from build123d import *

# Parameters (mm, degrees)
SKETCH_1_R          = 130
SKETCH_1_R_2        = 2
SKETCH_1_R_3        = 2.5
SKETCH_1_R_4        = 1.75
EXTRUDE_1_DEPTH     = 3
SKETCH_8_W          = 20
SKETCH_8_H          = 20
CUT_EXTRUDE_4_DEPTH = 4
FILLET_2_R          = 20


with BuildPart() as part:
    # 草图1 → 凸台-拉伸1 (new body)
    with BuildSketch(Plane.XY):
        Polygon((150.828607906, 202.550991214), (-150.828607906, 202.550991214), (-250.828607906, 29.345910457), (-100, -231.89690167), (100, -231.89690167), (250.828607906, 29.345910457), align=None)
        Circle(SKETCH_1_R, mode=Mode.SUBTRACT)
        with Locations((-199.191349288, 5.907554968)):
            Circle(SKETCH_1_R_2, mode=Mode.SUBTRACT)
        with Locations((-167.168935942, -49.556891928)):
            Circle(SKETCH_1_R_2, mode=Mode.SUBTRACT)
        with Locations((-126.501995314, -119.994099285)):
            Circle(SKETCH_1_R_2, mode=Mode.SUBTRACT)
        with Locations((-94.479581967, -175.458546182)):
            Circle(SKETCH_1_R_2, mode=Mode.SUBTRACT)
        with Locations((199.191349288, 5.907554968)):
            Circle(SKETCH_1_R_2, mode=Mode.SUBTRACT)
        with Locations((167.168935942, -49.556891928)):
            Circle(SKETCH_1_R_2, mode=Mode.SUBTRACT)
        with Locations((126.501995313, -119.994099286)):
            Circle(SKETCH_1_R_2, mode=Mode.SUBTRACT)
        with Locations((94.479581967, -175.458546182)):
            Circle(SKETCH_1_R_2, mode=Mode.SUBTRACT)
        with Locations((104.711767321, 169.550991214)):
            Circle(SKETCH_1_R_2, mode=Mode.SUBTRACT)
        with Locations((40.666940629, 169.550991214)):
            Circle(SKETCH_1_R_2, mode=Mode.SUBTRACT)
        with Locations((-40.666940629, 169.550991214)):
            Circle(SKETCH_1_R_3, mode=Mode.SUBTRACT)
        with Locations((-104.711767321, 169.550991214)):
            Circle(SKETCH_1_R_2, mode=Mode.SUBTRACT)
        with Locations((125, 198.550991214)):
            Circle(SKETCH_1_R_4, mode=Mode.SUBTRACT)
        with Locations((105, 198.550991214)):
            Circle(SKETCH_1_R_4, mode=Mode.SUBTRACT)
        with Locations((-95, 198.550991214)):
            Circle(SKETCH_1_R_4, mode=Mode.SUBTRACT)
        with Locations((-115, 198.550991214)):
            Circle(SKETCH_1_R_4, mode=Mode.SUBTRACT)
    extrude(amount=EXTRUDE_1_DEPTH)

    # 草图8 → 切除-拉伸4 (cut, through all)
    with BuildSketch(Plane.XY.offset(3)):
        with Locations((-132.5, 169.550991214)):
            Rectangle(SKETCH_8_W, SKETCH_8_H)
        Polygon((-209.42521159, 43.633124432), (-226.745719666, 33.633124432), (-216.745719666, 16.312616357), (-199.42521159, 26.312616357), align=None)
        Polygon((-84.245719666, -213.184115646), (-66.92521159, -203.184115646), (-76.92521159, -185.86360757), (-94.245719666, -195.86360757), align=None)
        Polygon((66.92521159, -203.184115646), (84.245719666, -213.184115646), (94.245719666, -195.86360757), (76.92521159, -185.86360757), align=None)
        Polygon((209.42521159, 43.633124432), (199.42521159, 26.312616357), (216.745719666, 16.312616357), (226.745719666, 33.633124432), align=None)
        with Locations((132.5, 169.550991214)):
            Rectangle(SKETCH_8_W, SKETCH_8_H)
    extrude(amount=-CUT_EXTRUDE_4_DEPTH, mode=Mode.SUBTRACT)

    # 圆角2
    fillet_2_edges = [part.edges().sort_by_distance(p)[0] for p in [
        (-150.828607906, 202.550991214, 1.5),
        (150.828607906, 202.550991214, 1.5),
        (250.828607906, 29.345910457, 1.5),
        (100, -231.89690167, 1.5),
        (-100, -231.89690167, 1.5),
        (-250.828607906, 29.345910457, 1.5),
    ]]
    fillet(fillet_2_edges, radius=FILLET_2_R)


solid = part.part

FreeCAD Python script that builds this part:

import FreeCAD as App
import Part
import Sketcher

V = App.Vector
Q = App.Units.Quantity


def edges_at(feature, points):
    """Names of the edges that pass closest to the given points."""
    edges = feature.Shape.Edges
    near = lambda p: min(range(len(edges)), key=lambda i: edges[i].distToShape(Part.Vertex(*p))[0])
    return sorted({f"Edge{near(p) + 1}" for p in points})


def add_polygon(sketch, points):
    """Adds a closed chain of lines whose ends are joined by coincident constraints."""
    first, n = sketch.GeometryCount, len(points)
    for a, b in zip(points, points[1:] + points[:1]):
        sketch.addGeometry(Part.LineSegment(App.Vector(*a, 0), App.Vector(*b, 0)), False)
    for i in range(n):
        sketch.addConstraint(Sketcher.Constraint("Coincident", first + i, 2, first + (i + 1) % n, 1))

doc = App.newDocument("Part")
body = doc.addObject("PartDesign::Body", "Body")

sketch1 = doc.addObject("Sketcher::SketchObject", "Sketch")
body.addObject(sketch1)
sketch1.AttachmentSupport = (doc.XY_Plane, [""])
sketch1.MapMode = "FlatFace"
add_polygon(sketch1, [(150.828608, 202.550991), (-150.828608, 202.550991), (-250.828608, 29.34591), (-100, -231.896902), (100, -231.896902), (250.828608, 29.34591)])
sketch1.addGeometry(Part.Circle(V(-126.501995, -119.994099, 0), V(0, 0, 1), 2), False)
sketch1.addGeometry(Part.Circle(V(-94.479582, -175.458546, 0), V(0, 0, 1), 2), False)
sketch1.addGeometry(Part.Circle(V(-167.168936, -49.556892, 0), V(0, 0, 1), 2), False)
sketch1.addGeometry(Part.Circle(V(-199.191349, 5.907555, 0), V(0, 0, 1), 2), False)
sketch1.addGeometry(Part.Circle(V(94.479582, -175.458546, 0), V(0, 0, 1), 2), False)
sketch1.addGeometry(Part.Circle(V(126.501995, -119.994099, 0), V(0, 0, 1), 2), False)
sketch1.addGeometry(Part.Circle(V(0, 0, 0), V(0, 0, 1), 130), False)
sketch1.addGeometry(Part.Circle(V(167.168936, -49.556892, 0), V(0, 0, 1), 2), False)
sketch1.addGeometry(Part.Circle(V(199.191349, 5.907555, 0), V(0, 0, 1), 2), False)
sketch1.addGeometry(Part.Circle(V(-104.711767, 169.550991, 0), V(0, 0, 1), 2), False)
sketch1.addGeometry(Part.Circle(V(-115, 198.550991, 0), V(0, 0, 1), 1.75), False)
sketch1.addGeometry(Part.Circle(V(-95, 198.550991, 0), V(0, 0, 1), 1.75), False)
sketch1.addGeometry(Part.Circle(V(-40.666941, 169.550991, 0), V(0, 0, 1), 2.5), False)
sketch1.addGeometry(Part.Circle(V(40.666941, 169.550991, 0), V(0, 0, 1), 2), False)
sketch1.addGeometry(Part.Circle(V(104.711767, 169.550991, 0), V(0, 0, 1), 2), False)
sketch1.addGeometry(Part.Circle(V(105, 198.550991, 0), V(0, 0, 1), 1.75), False)
sketch1.addGeometry(Part.Circle(V(125, 198.550991, 0), V(0, 0, 1), 1.75), False)
sketch1.addConstraint(Sketcher.Constraint("Horizontal", 0))
sketch1.addConstraint(Sketcher.Constraint("Horizontal", 3))
sketch1.addConstraint(Sketcher.Constraint("Coincident", 12, 3, -1, 1))
sketch1.addConstraint(Sketcher.Constraint("Equal", 6, 7))
sketch1.addConstraint(Sketcher.Constraint("Equal", 7, 8))
sketch1.addConstraint(Sketcher.Constraint("Equal", 8, 9))
sketch1.addConstraint(Sketcher.Constraint("Equal", 9, 10))
sketch1.addConstraint(Sketcher.Constraint("Equal", 10, 11))
sketch1.addConstraint(Sketcher.Constraint("Equal", 11, 13))
sketch1.addConstraint(Sketcher.Constraint("Equal", 13, 14))
sketch1.addConstraint(Sketcher.Constraint("Equal", 14, 15))
sketch1.addConstraint(Sketcher.Constraint("Equal", 16, 17))
sketch1.addConstraint(Sketcher.Constraint("Equal", 15, 19))
sketch1.addConstraint(Sketcher.Constraint("Equal", 19, 20))
sketch1.addConstraint(Sketcher.Constraint("Equal", 17, 21))
sketch1.addConstraint(Sketcher.Constraint("Equal", 21, 22))
sketch1.addConstraint(Sketcher.Constraint("Symmetric", 7, 3, 10, 3, -2))
sketch1.addConstraint(Sketcher.Constraint("Symmetric", 6, 3, 11, 3, -2))
sketch1.addConstraint(Sketcher.Constraint("Symmetric", 8, 3, 13, 3, -2))
sketch1.addConstraint(Sketcher.Constraint("Symmetric", 9, 3, 14, 3, -2))
sketch1.addConstraint(Sketcher.Constraint("Symmetric", 18, 3, 19, 3, -2))
sketch1.addConstraint(Sketcher.Constraint("Symmetric", 15, 3, 20, 3, -2))
sketch1.addConstraint(Sketcher.Constraint("Symmetric", 1, 2, 4, 2, -2))
sketch1.addConstraint(Sketcher.Constraint("Parallel", 1, 4))
sketch1.addConstraint(Sketcher.Constraint("Parallel", 2, 5))
sketch1.addConstraint(Sketcher.Constraint("Horizontal", 16, 3, 17, 3))
sketch1.addConstraint(Sketcher.Constraint("Horizontal", 15, 3, 18, 3))
sketch1.addConstraint(Sketcher.Constraint("Horizontal", 17, 3, 21, 3))
sketch1.addConstraint(Sketcher.Constraint("Horizontal", 21, 3, 22, 3))
sketch1.addConstraint(Sketcher.Constraint("Equal", 2, 4))
sketch1.addConstraint(Sketcher.Constraint("Diameter", 6, Q("4 mm")))
sketch1.addConstraint(Sketcher.Constraint("Diameter", 12, Q("260 mm")))
sketch1.addConstraint(Sketcher.Constraint("Diameter", 18, Q("5 mm")))
sketch1.addConstraint(Sketcher.Constraint("Diameter", 16, Q("3.5 mm")))
sketch1.addConstraint(Sketcher.Constraint("DistanceX", 3, 1, 3, 2, Q("200 mm")))
sketch1.addConstraint(Sketcher.Constraint("Angle", 1, Q("-120 deg")))
sketch1.addConstraint(Sketcher.Constraint("Distance", 1, Q("200 mm")))
sketch1.addConstraint(Sketcher.Constraint("DistanceX", 16, 3, -1, 1, Q("115 mm")))
sketch1.addConstraint(Sketcher.Constraint("DistanceX", 17, 3, -1, 1, Q("95 mm")))
sketch1.addConstraint(Sketcher.Constraint("DistanceX", -1, 1, 21, 3, Q("105 mm")))
sketch1.addConstraint(Sketcher.Constraint("DistanceX", -1, 1, 22, 3, Q("125 mm")))
sketch1.addConstraint(Sketcher.Constraint("DistanceY", 15, 3, 16, 3, Q("29 mm")))
sketch1.addConstraint(Sketcher.Constraint("DistanceY", 16, 3, 0, 2, Q("4 mm")))
sketch1.addConstraint(Sketcher.Constraint("DistanceY", 6, 3, -1, 1, Q("119.994099 mm")))
sketch1.addConstraint(Sketcher.Constraint("DistanceY", 2, 2, -1, 1, Q("231.896902 mm")))
sketch1.addConstraint(Sketcher.Constraint("DistanceY", 7, 3, 9, 3, Q("181.366101 mm")))
sketch1.addConstraint(Sketcher.Constraint("DistanceX", 0, 2, 0, 1, Q("301.657216 mm")))
sketch1.addConstraint(Sketcher.Constraint("DistanceX", 7, 3, -1, 1, Q("94.479582 mm")))
sketch1.addConstraint(Sketcher.Constraint("DistanceY", 8, 3, -1, 1, Q("49.556892 mm")))
sketch1.addConstraint(Sketcher.Constraint("DistanceX", 9, 3, -1, 1, Q("199.191349 mm")))
sketch1.addConstraint(Sketcher.Constraint("DistanceX", 18, 3, -1, 1, Q("40.666941 mm")))
sketch1.addConstraint(Sketcher.Constraint("DistanceX", 8, 3, 6, 3, Q("40.666941 mm")))
sketch1.addConstraint(Sketcher.Constraint("DistanceX", 6, 3, 11, 3, Q("253.003991 mm")))
sketch1.addConstraint(Sketcher.Constraint("DistanceX", 9, 3, 15, 3, Q("94.479582 mm")))
sketch1.addConstraint(Sketcher.Constraint("DistanceY", 7, 3, -1, 1, Q("175.458546 mm")))
pad1 = doc.addObject("PartDesign::Pad", "Pad")
body.addObject(pad1)
pad1.Profile = sketch1
pad1.Length = 3

sketch2 = doc.addObject("Sketcher::SketchObject", "Sketch001")
body.addObject(sketch2)
sketch2.AttachmentSupport = (doc.XY_Plane, [""])
sketch2.MapMode = "FlatFace"
sketch2.AttachmentOffset = App.Placement(V(0, 0, 3), App.Rotation())
add_polygon(sketch2, [(-142.5, 179.550991), (-142.5, 159.550991), (-122.5, 159.550991), (-122.5, 179.550991)])
add_polygon(sketch2, [(-209.425212, 43.633124), (-226.74572, 33.633124), (-216.74572, 16.312616), (-199.425212, 26.312616)])
add_polygon(sketch2, [(-84.24572, -213.184116), (-66.925212, -203.184116), (-76.925212, -185.863608), (-94.24572, -195.863608)])
add_polygon(sketch2, [(66.925212, -203.184116), (84.24572, -213.184116), (94.24572, -195.863608), (76.925212, -185.863608)])
add_polygon(sketch2, [(209.425212, 43.633124), (199.425212, 26.312616), (216.74572, 16.312616), (226.74572, 33.633124)])
add_polygon(sketch2, [(122.5, 179.550991), (122.5, 159.550991), (142.5, 159.550991), (142.5, 179.550991)])
sketch2.addConstraint(Sketcher.Constraint("Vertical", 0))
sketch2.addConstraint(Sketcher.Constraint("Horizontal", 1))
sketch2.addConstraint(Sketcher.Constraint("Vertical", 2))
sketch2.addConstraint(Sketcher.Constraint("Horizontal", 3))
sketch2.addConstraint(Sketcher.Constraint("Vertical", 20))
sketch2.addConstraint(Sketcher.Constraint("Horizontal", 21))
sketch2.addConstraint(Sketcher.Constraint("Vertical", 22))
sketch2.addConstraint(Sketcher.Constraint("Horizontal", 23))
sketch2.addConstraint(Sketcher.Constraint("Symmetric", 11, 2, 12, 2, -2))
sketch2.addConstraint(Sketcher.Constraint("Symmetric", 10, 2, 13, 2, -2))
sketch2.addConstraint(Sketcher.Constraint("Symmetric", 9, 2, 14, 2, -2))
sketch2.addConstraint(Sketcher.Constraint("Symmetric", 8, 2, 15, 2, -2))
sketch2.addConstraint(Sketcher.Constraint("Symmetric", 6, 2, 16, 2, -2))
sketch2.addConstraint(Sketcher.Constraint("Symmetric", 5, 2, 17, 2, -2))
sketch2.addConstraint(Sketcher.Constraint("Symmetric", 4, 2, 18, 2, -2))
sketch2.addConstraint(Sketcher.Constraint("Symmetric", 7, 2, 19, 2, -2))
sketch2.addConstraint(Sketcher.Constraint("Symmetric", 1, 2, 20, 2, -2))
sketch2.addConstraint(Sketcher.Constraint("Symmetric", 3, 2, 22, 2, -2))
sketch2.addConstraint(Sketcher.Constraint("Perpendicular", 4, 5))
sketch2.addConstraint(Sketcher.Constraint("Perpendicular", 5, 6))
sketch2.addConstraint(Sketcher.Constraint("Perpendicular", 6, 7))
sketch2.addConstraint(Sketcher.Constraint("Perpendicular", 7, 8))
sketch2.addConstraint(Sketcher.Constraint("Perpendicular", 8, 9))
sketch2.addConstraint(Sketcher.Constraint("Perpendicular", 9, 10))
sketch2.addConstraint(Sketcher.Constraint("Perpendicular", 10, 11))
sketch2.addConstraint(Sketcher.Constraint("Equal", 23, 0))
sketch2.addConstraint(Sketcher.Constraint("Equal", 4, 5))
sketch2.addConstraint(Sketcher.Constraint("Equal", 7, 8))
sketch2.addConstraint(Sketcher.Constraint("Equal", 8, 9))
sketch2.addConstraint(Sketcher.Constraint("DistanceX", 1, 1, 1, 2, Q("20 mm")))
sketch2.addConstraint(Sketcher.Constraint("Angle", 4, Q("-150 deg")))
sketch2.addConstraint(Sketcher.Constraint("Distance", 4, Q("20 mm")))
sketch2.addConstraint(Sketcher.Constraint("DistanceX", 1, 2, 20, 2, Q("245 mm")))
sketch2.addConstraint(Sketcher.Constraint("DistanceX", 6, 2, 8, 2, Q("132.5 mm")))
sketch2.addConstraint(Sketcher.Constraint("DistanceY", -1, 1, 0, 2, Q("159.550991 mm")))
sketch2.addConstraint(Sketcher.Constraint("DistanceX", 4, 2, -1, 1, Q("226.74572 mm")))
sketch2.addConstraint(Sketcher.Constraint("DistanceY", 8, 2, 7, 2, Q("246.81724 mm")))
sketch2.addConstraint(Sketcher.Constraint("DistanceY", -1, 1, 4, 2, Q("33.633124 mm")))
pocket1 = doc.addObject("PartDesign::Pocket", "Pocket")
body.addObject(pocket1)
pocket1.Profile = sketch2
pocket1.Type = "ThroughAll"
doc.recompute()

fillet = doc.addObject("PartDesign::Fillet", "Fillet")
body.addObject(fillet)
fillet.Base = (pocket1, edges_at(pocket1, [
    (-150.829, 202.551, 1.5),
    (150.829, 202.551, 1.5),
    (250.829, 29.346, 1.5),
    (100, -231.897, 1.5),
    (-100, -231.897, 1.5),
    (-250.829, 29.346, 1.5),
]))
fillet.Radius = 20

doc.recompute()
